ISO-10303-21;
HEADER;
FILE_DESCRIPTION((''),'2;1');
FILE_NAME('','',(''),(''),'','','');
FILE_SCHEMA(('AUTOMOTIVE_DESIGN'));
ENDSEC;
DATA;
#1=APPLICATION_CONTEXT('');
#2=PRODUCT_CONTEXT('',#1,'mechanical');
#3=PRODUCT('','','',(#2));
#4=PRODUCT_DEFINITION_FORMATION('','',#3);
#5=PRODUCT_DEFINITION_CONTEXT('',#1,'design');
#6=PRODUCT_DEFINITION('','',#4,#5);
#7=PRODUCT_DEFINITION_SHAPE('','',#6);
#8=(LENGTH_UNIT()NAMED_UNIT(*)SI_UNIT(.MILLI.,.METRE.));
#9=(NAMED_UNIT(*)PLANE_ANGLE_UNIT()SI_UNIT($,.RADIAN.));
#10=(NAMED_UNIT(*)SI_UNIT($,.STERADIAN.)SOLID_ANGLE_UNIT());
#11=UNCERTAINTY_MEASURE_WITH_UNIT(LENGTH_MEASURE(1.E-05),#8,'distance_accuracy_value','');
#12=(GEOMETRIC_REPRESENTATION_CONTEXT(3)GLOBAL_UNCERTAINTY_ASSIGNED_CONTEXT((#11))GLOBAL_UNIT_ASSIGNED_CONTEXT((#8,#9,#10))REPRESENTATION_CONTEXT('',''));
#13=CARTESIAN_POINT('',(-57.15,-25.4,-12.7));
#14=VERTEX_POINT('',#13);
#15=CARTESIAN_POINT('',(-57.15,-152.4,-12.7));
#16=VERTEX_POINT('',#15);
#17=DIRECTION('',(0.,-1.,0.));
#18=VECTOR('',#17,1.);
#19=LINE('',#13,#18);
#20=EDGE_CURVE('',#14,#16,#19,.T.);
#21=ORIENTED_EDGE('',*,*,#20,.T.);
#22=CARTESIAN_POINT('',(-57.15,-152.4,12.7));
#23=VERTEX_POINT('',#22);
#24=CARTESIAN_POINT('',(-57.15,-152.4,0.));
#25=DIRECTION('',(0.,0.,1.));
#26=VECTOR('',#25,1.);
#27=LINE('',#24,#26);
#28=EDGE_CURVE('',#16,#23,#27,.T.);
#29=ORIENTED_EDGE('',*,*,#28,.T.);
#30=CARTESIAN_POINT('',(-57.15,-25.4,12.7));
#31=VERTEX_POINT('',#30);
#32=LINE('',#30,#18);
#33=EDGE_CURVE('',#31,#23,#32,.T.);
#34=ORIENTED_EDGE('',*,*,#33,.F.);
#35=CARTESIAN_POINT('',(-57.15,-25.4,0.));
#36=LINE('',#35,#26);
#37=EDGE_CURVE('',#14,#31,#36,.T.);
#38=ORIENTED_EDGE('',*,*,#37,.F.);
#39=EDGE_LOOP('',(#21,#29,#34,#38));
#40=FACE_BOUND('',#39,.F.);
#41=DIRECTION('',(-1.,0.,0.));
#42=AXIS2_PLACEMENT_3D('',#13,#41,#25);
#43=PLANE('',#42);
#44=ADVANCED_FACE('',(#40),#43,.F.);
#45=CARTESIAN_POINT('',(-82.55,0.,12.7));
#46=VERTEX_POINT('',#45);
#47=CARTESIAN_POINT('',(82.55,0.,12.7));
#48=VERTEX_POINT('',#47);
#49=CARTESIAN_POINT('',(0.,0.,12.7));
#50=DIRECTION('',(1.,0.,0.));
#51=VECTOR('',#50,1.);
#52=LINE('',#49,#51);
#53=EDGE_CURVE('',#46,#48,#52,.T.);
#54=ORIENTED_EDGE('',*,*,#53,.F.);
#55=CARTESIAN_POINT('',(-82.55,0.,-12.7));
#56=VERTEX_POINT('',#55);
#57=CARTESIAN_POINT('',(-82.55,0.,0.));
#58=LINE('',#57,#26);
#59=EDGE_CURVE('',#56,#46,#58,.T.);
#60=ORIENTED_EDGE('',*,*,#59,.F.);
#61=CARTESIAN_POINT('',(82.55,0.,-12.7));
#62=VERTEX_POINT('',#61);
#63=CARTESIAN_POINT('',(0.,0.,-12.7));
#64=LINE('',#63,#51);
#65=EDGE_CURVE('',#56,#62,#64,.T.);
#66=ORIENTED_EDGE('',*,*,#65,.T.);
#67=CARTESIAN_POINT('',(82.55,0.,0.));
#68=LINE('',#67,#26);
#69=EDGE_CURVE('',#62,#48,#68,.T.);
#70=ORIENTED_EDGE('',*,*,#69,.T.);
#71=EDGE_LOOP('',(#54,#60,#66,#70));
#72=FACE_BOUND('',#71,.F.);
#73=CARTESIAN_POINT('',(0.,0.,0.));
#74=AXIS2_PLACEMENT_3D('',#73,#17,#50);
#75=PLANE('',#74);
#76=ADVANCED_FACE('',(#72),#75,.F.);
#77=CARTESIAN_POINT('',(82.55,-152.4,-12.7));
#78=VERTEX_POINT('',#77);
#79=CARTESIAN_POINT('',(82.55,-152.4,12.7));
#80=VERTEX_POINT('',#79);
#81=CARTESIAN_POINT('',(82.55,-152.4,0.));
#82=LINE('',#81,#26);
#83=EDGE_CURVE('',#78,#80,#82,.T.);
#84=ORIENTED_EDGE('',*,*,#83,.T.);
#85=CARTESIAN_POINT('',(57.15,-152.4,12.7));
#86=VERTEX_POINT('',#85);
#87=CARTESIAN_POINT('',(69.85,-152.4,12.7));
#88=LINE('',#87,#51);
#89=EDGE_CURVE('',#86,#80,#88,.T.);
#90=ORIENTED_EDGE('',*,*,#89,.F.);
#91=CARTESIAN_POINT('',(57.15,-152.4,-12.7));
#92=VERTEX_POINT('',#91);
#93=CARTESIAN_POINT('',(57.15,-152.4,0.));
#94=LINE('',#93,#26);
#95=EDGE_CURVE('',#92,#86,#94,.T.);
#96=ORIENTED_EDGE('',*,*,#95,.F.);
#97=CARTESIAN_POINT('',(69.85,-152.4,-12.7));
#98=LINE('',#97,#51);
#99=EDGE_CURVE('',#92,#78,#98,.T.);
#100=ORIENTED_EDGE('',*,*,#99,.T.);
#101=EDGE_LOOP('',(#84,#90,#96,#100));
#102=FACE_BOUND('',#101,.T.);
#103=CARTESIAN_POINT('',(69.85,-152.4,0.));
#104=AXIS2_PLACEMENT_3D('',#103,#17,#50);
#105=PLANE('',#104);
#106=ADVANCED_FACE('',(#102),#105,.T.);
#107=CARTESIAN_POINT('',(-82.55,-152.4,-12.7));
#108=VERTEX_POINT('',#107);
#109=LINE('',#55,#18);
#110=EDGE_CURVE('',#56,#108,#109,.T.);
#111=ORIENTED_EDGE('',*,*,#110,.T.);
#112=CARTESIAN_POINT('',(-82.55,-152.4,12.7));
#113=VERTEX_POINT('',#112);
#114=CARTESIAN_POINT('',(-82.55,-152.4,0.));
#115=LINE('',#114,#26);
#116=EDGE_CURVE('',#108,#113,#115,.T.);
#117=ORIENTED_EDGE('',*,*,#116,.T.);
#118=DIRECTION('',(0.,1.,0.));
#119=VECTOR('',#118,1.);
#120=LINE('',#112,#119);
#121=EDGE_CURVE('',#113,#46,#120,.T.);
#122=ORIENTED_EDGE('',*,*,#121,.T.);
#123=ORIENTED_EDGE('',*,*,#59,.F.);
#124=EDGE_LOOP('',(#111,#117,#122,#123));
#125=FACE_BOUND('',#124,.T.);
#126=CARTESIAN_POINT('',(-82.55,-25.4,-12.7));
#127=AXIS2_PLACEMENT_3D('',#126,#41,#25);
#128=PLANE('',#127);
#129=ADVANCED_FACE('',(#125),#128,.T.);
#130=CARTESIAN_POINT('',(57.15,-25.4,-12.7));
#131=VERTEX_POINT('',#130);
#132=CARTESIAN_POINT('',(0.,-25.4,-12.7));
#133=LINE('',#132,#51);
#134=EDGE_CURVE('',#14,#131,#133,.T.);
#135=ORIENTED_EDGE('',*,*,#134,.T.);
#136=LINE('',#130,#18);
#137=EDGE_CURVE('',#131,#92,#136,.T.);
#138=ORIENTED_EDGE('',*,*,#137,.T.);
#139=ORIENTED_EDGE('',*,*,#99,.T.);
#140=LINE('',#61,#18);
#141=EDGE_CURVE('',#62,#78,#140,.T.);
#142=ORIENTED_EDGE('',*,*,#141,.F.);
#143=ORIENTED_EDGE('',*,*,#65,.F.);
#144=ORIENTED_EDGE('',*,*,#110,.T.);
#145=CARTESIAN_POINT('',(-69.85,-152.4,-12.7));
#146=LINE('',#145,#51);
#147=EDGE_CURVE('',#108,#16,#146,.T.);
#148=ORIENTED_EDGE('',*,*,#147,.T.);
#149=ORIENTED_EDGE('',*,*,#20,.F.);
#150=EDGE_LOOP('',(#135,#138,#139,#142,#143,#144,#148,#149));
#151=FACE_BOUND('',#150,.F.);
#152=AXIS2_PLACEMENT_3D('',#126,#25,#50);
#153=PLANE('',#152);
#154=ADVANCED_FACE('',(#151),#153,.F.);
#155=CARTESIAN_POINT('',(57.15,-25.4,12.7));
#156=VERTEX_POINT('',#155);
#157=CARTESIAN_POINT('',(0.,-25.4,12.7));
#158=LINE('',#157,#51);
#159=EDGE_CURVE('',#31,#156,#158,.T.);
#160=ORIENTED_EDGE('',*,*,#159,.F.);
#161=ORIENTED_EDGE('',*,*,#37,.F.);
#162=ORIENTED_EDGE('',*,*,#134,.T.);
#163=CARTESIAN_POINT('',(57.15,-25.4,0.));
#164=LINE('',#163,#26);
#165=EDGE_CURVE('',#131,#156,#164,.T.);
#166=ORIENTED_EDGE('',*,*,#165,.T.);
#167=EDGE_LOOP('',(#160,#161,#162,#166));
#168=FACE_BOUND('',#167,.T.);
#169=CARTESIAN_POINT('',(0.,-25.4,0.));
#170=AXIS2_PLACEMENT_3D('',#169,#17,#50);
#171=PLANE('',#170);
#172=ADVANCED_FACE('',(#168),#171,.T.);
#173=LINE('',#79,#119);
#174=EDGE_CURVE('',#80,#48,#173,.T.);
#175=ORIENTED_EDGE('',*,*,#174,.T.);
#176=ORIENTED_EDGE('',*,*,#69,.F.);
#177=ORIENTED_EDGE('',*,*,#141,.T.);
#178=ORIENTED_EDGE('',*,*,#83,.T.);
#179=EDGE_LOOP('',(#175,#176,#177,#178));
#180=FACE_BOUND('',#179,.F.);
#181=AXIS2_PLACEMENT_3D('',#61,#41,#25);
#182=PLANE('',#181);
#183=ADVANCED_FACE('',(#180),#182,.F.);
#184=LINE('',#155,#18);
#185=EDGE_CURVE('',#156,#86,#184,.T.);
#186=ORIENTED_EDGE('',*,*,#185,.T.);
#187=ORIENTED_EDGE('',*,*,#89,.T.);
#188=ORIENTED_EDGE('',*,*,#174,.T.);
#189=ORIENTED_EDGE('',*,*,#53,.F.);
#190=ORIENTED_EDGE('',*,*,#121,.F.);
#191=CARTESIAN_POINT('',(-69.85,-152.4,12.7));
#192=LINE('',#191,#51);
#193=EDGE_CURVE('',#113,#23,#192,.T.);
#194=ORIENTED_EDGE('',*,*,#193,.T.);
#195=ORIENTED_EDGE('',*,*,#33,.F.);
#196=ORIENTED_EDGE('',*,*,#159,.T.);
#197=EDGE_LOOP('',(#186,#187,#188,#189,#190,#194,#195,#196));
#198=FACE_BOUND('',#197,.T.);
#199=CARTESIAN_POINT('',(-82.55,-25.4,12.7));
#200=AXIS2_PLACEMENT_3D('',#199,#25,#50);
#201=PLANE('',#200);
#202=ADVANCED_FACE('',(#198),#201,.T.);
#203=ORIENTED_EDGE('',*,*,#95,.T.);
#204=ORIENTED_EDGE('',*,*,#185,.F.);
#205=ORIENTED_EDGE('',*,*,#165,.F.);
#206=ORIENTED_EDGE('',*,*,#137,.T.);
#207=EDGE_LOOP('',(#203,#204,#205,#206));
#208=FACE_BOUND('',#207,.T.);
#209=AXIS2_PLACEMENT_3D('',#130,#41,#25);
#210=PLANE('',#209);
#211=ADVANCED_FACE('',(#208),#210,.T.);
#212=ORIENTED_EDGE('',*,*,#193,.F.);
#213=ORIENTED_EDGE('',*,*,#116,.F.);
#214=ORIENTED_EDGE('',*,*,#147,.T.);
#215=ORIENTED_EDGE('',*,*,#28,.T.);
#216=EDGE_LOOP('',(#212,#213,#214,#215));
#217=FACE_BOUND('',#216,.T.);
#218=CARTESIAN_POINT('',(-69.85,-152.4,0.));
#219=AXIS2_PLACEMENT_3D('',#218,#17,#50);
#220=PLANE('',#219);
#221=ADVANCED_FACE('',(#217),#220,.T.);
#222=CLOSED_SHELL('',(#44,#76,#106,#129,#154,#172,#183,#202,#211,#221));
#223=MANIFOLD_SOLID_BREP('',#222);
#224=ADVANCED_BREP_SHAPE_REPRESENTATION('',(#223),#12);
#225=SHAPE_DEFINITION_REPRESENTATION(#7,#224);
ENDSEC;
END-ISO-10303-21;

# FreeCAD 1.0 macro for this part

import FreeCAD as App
import Part
import Sketcher
Q = App.Units.Quantity


def add_polygon(sketch, points):
    """Adds a closed chain of lines whose ends are joined by coincident constraints."""
    first, n = sketch.GeometryCount, len(points)
    for a, b in zip(points, points[1:] + points[:1]):
        sketch.addGeometry(Part.LineSegment(App.Vector(*a, 0), App.Vector(*b, 0)), False)
    for i in range(n):
        sketch.addConstraint(Sketcher.Constraint("Coincident", first + i, 2, first + (i + 1) % n, 1))

doc = App.newDocument("Part")
params = doc.addObject("Spreadsheet::Sheet", "Params")
for row, (alias, value) in enumerate([
    ("sketch1_height", "1 in"),
    ("sketch1_width", "6.5 in"),
    ("pad1_length", "1 in"),
    ("sketch2_width", "1 in"),
    ("pad2_length", "5 in"),
], start=1):
    params.set(f"A{row}", alias)
    params.set(f"B{row}", "=" + value)
    params.setAlias(f"B{row}", alias)

body = doc.addObject("PartDesign::Body", "Body")

sketch1 = body.newObject("Sketcher::SketchObject", "Sketch")
sketch1.AttachmentSupport = (doc.getObject("XZ_Plane"), [""])
sketch1.MapMode = "FlatFace"
add_polygon(sketch1, [(-83, 13), (-83, -13), (83, -13), (83, 13)])
sketch1.addConstraint(Sketcher.Constraint("Vertical", 0))
sketch1.addConstraint(Sketcher.Constraint("Horizontal", 1))
sketch1.addConstraint(Sketcher.Constraint("Vertical", 2))
sketch1.addConstraint(Sketcher.Constraint("Horizontal", 3))
sketch1.addConstraint(Sketcher.Constraint("Symmetric", 0, 2, 2, 2, -1, 1))
sketch1.addConstraint(Sketcher.Constraint("DistanceY", 0, 2, 0, 1, Q("1 in")))
sketch1.addConstraint(Sketcher.Constraint("DistanceX", 1, 1, 1, 2, Q("6.5 in")))
sketch1.setExpression("Constraints[9]", "Params.sketch1_height")
sketch1.setExpression("Constraints[10]", "Params.sketch1_width")
pad1 = body.newObject("PartDesign::Pad", "Pad")
pad1.Profile = sketch1
pad1.setExpression("Length", "Params.pad1_length")

sketch2 = body.newObject("Sketcher::SketchObject", "Sketch001")
sketch2.AttachmentSupport = (doc.getObject("XZ_Plane"), [""])
sketch2.MapMode = "FlatFace"
sketch2.AttachmentOffset = App.Placement(App.Vector(0, 0, 1 * 25.4), App.Rotation())
add_polygon(sketch2, [(-83, 13), (-83, -13), (-57, -13), (-57, 13)])
add_polygon(sketch2, [(57, 13), (57, -13), (83, -13), (83, 13)])
sketch2.addConstraint(Sketcher.Constraint("Vertical", 0))
sketch2.addConstraint(Sketcher.Constraint("Horizontal", 1))
sketch2.addConstraint(Sketcher.Constraint("Vertical", 2))
sketch2.addConstraint(Sketcher.Constraint("Horizontal", 3))
sketch2.addConstraint(Sketcher.Constraint("Vertical", 4))
sketch2.addConstraint(Sketcher.Constraint("Horizontal", 5))
sketch2.addConstraint(Sketcher.Constraint("Vertical", 6))
sketch2.addConstraint(Sketcher.Constraint("Horizontal", 7))
sketch2.addConstraint(Sketcher.Constraint("Symmetric", 2, 2, 4, 2, -1, 1))
sketch2.addConstraint(Sketcher.Constraint("Symmetric", 0, 2, 6, 2, -1, 1))
sketch2.addConstraint(Sketcher.Constraint("Horizontal", 1, 2, 4, 2))
sketch2.addConstraint(Sketcher.Constraint("Equal", 7, 0))
sketch2.addConstraint(Sketcher.Constraint("DistanceX", 1, 1, 1, 2, Q("1 in")))
sketch2.addConstraint(Sketcher.Constraint("DistanceX", 1, 2, 4, 2, Q("4.5 in")))
sketch2.setExpression("Constraints[20]", "Params.sketch2_width")
pad2 = body.newObject("PartDesign::Pad", "Pad001")
pad2.Profile = sketch2
pad2.setExpression("Length", "Params.pad2_length")

doc.recompute()
